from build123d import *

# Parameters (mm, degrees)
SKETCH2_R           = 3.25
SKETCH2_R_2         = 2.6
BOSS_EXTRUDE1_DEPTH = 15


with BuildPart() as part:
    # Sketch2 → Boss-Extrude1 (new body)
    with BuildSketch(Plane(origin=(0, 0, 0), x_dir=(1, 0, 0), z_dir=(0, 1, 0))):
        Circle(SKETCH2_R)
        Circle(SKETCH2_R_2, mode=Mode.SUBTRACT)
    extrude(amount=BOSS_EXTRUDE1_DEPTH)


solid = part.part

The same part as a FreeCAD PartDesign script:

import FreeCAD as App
import Part
import Sketcher
from FreeCAD import Vector

doc = App.newDocument("Part")
body = doc.addObject("PartDesign::Body", "Body")

# Sketch on XZ plane
sketch1 = body.newObject("Sketcher::SketchObject", "Sketch")
sketch1.AttachmentSupport = (doc.getObject("XZ_Plane"), [""])
sketch1.MapMode = "FlatFace"
sketch1.addGeometry([
    Part.Circle(Vector(0, 0, 0), Vector(0, 0, 1), 3.25),
    Part.Circle(Vector(0, 0, 0), Vector(0, 0, 1), 2.6),
], False)
sketch1.addConstraint([
    Sketcher.Constraint("Coincident", 0, 3, -1, 1),
    Sketcher.Constraint("Coincident", 1, 3, -1, 1),
    Sketcher.Constraint("Diameter", 0, 6.5),
    Sketcher.Constraint("Diameter", 1, 5.2),
])
pad1 = body.newObject("PartDesign::Pad", "Pad")
pad1.Profile = sketch1
pad1.Length = 15
pad1.Reversed = True

doc.recompute()
